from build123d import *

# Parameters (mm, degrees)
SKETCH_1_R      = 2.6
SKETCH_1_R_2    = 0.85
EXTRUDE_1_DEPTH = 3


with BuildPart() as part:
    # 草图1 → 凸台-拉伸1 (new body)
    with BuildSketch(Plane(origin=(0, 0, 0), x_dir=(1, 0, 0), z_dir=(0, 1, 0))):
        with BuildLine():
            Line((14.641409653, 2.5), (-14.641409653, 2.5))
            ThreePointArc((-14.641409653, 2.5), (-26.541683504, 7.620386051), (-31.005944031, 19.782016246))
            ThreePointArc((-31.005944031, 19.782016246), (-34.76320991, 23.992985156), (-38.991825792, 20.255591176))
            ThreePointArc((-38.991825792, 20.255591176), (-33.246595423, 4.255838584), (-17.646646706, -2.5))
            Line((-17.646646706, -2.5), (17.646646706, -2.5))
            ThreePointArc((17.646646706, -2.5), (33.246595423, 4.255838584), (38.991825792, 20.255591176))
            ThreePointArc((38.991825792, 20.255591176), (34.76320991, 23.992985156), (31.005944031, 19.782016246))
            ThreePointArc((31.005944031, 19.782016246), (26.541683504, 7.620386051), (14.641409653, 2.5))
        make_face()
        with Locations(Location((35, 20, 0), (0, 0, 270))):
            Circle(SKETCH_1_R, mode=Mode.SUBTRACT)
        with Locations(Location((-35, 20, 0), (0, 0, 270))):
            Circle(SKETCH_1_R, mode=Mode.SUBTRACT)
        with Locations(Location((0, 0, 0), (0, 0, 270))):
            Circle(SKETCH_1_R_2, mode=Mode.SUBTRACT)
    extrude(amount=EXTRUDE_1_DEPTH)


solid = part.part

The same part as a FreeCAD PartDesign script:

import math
import FreeCAD as App
import Part
import Sketcher

doc = App.newDocument("Part")
body = doc.addObject("PartDesign::Body", "Body")

# Sketch on XZ plane
sketch1 = doc.addObject("Sketcher::SketchObject", "Sketch")
body.addObject(sketch1)
sketch1.AttachmentSupport = (doc.XZ_Plane, [""])
sketch1.MapMode = "FlatFace"
sketch1.addGeometry([
    Part.LineSegment(App.Vector(14.6, -2.5, 0), App.Vector(-14.6, -2.5, 0)),  # 0
    Part.ArcOfCircle(Part.Circle(App.Vector(-14.6, -18.9, 0), App.Vector(0, 0, 1), 16.4), math.radians(90), math.radians(183)),  # 1
    Part.ArcOfCircle(Part.Circle(App.Vector(-35, -20, 0), App.Vector(0, 0, 1), 4), math.radians(-176), math.radians(3)),  # 2
    Part.ArcOfCircle(Part.Circle(App.Vector(-17.6, -18.9, 0), App.Vector(0, 0, 1), 21.4), math.radians(90), math.radians(184)),  # 3
    Part.LineSegment(App.Vector(-17.6, 2.5, 0), App.Vector(17.6, 2.5, 0)),  # 4
    Part.ArcOfCircle(Part.Circle(App.Vector(17.6, -18.9, 0), App.Vector(0, 0, 1), 21.4), math.radians(-4), math.radians(90)),  # 5
    Part.ArcOfCircle(Part.Circle(App.Vector(35, -20, 0), App.Vector(0, 0, 1), 4), math.radians(177), math.radians(356)),  # 6
    Part.ArcOfCircle(Part.Circle(App.Vector(14.6, -18.9, 0), App.Vector(0, 0, 1), 16.4), math.radians(-3), math.radians(90)),  # 7
    Part.Circle(App.Vector(0, 0, 0), App.Vector(0, 0, 1), 0.8),  # 8
    Part.Circle(App.Vector(-35, -20, 0), App.Vector(0, 0, 1), 2.6),  # 9
    Part.Circle(App.Vector(35, -20, 0), App.Vector(0, 0, 1), 2.6),  # 10
], False)
sketch1.addConstraint([
    Sketcher.Constraint("Tangent", 0, 2, 1, 1),
    Sketcher.Constraint("Tangent", 1, 2, 2, 2),
    Sketcher.Constraint("Tangent", 2, 1, 3, 2),
    Sketcher.Constraint("Tangent", 3, 1, 4, 1),
    Sketcher.Constraint("Tangent", 4, 2, 5, 2),
    Sketcher.Constraint("Tangent", 5, 1, 6, 2),
    Sketcher.Constraint("Tangent", 6, 1, 7, 1),
    Sketcher.Constraint("Tangent", 7, 2, 0, 1),
    Sketcher.Constraint("Horizontal", 0),
    Sketcher.Constraint("Horizontal", 4),
    Sketcher.Constraint("Coincident", 8, 3, -1, 1),
    Sketcher.Constraint("Coincident", 9, 3, 2, 3),
    Sketcher.Constraint("Coincident", 10, 3, 6, 3),
    Sketcher.Constraint("Equal", 3, 5),
    Sketcher.Constraint("Equal", 2, 6),
    Sketcher.Constraint("Equal", 1, 7),
    Sketcher.Constraint("Equal", 9, 10),
    Sketcher.Constraint("Symmetric", 2, 3, 6, 3, -2),
    Sketcher.Constraint("Horizontal", 1, 3, 3, 3),
    Sketcher.Constraint("Radius", 2, 4.0),
    Sketcher.Constraint("Diameter", 8, 1.7),
    Sketcher.Constraint("Diameter", 9, 5.2),
    Sketcher.Constraint("DistanceX", 2, 3, -1, 1, 35.0),
    Sketcher.Constraint("DistanceY", 2, 3, -1, 1, 20.0),
    Sketcher.Constraint("DistanceY", 0, 2, 3, 1, 5.0),
    Sketcher.Constraint("DistanceY", 0, 2, -1, 1, 2.5),
    Sketcher.Constraint("Radius", 1, 16.388888),
])
pad1 = doc.addObject("PartDesign::Pad", "Pad")
body.addObject(pad1)
pad1.Profile = sketch1
pad1.Length = 3
pad1.Reversed = True

doc.recompute()
